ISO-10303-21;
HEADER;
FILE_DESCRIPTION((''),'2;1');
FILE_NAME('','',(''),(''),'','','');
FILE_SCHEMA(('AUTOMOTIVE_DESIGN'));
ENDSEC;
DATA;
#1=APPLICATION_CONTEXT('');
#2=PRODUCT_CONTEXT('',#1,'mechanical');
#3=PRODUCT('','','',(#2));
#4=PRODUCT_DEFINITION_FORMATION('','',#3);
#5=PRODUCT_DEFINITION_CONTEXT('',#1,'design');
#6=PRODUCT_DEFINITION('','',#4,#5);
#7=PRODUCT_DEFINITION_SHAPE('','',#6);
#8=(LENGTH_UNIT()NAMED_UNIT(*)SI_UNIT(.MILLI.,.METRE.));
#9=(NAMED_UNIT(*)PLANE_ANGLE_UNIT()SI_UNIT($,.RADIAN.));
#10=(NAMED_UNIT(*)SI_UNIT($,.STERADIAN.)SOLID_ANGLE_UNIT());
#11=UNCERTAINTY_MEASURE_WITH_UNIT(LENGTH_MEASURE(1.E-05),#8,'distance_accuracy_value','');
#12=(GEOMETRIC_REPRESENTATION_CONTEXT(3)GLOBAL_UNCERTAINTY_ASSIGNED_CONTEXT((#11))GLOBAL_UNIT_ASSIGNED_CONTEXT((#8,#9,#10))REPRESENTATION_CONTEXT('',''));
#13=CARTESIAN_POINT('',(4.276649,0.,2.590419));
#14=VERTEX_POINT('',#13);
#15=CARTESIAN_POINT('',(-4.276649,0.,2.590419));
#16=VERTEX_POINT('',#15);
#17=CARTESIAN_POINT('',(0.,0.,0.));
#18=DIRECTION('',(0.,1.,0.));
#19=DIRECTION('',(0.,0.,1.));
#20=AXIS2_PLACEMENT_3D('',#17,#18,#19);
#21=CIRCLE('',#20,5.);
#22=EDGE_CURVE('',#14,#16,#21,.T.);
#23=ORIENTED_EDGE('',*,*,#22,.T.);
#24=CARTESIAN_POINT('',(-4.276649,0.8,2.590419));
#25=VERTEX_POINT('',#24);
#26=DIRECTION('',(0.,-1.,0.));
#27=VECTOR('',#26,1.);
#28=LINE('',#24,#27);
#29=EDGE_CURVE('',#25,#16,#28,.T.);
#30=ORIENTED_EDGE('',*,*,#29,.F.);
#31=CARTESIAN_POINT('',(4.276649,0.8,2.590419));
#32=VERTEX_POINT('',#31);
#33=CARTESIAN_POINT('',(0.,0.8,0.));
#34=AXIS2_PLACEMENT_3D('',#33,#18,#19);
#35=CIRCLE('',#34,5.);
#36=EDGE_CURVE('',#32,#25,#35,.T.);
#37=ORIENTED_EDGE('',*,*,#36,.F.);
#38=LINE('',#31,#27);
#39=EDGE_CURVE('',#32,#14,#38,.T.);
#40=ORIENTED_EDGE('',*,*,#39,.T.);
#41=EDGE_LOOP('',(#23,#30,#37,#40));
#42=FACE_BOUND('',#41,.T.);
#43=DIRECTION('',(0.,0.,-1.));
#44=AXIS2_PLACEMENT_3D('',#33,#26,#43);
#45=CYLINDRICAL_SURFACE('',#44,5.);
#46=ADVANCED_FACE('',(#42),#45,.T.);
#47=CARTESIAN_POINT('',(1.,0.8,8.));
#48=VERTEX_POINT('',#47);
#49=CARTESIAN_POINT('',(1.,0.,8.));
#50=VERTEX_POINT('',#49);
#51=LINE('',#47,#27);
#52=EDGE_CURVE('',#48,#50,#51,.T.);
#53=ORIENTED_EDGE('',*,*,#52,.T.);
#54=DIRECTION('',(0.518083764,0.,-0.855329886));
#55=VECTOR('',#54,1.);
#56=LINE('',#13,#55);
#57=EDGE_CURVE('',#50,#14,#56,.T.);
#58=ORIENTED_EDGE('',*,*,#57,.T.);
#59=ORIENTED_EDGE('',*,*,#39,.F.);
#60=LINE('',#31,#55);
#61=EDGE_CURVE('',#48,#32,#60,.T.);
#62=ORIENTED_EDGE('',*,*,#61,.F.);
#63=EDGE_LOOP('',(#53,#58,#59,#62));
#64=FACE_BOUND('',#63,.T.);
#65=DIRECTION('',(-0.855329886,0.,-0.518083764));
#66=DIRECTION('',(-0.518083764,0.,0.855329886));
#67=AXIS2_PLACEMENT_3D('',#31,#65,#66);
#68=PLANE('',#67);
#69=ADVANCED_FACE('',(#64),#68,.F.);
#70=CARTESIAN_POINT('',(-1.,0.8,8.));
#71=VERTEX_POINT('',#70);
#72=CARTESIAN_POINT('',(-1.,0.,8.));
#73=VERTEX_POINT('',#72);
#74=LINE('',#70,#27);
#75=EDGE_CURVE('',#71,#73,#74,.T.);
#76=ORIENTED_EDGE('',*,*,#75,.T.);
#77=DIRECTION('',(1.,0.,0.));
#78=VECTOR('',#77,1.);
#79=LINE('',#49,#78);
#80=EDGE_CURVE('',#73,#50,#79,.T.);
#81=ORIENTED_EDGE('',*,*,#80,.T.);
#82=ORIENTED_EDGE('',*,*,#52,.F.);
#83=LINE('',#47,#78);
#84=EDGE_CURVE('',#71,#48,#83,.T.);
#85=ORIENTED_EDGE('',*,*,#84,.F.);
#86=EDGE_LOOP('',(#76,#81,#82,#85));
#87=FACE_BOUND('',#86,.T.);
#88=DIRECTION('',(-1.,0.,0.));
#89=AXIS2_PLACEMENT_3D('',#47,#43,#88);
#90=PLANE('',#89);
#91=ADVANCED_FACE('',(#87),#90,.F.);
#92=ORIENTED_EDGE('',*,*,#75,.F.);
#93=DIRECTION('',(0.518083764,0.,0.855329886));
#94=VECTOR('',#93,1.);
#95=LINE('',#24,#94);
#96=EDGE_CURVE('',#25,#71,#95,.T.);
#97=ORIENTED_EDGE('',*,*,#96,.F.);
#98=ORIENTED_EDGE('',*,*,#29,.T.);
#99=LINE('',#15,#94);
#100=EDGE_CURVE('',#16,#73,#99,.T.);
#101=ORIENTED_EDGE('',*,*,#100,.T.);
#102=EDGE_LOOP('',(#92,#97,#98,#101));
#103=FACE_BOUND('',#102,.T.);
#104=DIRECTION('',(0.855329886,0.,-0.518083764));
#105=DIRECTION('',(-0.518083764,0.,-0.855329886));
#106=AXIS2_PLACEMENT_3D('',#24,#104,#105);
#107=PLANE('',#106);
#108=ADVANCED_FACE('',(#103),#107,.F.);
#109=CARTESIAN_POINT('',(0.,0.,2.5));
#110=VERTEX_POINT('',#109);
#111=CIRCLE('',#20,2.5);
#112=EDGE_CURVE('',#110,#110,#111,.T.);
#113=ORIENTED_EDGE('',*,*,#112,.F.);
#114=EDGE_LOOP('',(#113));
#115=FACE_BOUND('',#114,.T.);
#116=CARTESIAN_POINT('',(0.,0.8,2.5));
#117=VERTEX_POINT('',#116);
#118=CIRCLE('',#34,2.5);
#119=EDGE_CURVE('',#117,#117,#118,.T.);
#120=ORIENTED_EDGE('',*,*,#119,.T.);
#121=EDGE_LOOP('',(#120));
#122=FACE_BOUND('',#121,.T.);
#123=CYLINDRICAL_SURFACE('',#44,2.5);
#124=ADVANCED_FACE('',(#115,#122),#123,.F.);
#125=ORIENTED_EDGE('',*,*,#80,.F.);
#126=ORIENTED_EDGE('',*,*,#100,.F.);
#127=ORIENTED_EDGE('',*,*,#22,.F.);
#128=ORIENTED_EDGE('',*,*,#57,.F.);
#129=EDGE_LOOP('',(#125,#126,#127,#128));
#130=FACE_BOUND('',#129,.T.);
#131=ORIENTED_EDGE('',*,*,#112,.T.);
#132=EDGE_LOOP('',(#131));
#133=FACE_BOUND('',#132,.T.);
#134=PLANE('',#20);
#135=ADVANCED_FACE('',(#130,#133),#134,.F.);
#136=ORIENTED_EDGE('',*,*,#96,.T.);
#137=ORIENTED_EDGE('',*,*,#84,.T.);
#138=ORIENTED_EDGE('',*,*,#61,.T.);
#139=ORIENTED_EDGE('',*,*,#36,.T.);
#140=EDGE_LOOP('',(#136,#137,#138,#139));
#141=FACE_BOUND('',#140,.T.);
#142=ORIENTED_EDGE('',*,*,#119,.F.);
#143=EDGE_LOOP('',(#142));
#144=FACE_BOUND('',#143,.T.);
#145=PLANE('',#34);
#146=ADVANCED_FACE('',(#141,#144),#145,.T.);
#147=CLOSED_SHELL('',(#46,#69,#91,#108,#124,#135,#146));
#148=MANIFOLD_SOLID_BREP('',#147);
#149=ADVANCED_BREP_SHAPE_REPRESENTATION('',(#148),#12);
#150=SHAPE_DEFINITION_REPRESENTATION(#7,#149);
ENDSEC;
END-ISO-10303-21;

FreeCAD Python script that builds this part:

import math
import FreeCAD as App
import Part
import Sketcher
from FreeCAD import Vector

doc = App.newDocument("Part")
params = doc.addObject("Spreadsheet::Sheet", "Params")
for row, (alias, value) in enumerate([
    ("sketch1_diameter", "5 mm"),
    ("sketch1_radius", "5 mm"),
    ("sketch1_width", "2 mm"),
    ("pad1_length", "0.8 mm"),
], start=1):
    params.set(f"A{row}", alias)
    params.set(f"B{row}", "=" + value)
    params.setAlias(f"B{row}", alias)

body = doc.addObject("PartDesign::Body", "Body")

# Sketch on XZ plane
sketch1 = doc.addObject("Sketcher::SketchObject", "Sketch")
body.addObject(sketch1)
sketch1.AttachmentSupport = (doc.XZ_Plane, [""])
sketch1.MapMode = "FlatFace"
sketch1.addGeometry([
    Part.LineSegment(Vector(-4.3, 2.6, 0), Vector(-1, 8, 0)),  # 0
    Part.LineSegment(Vector(-1, 8, 0), Vector(1, 8, 0)),  # 1
    Part.LineSegment(Vector(1, 8, 0), Vector(4.3, 2.6, 0)),  # 2
    Part.ArcOfCircle(Part.Circle(Vector(0, 0, 0), Vector(0, 0, 1), 5), math.radians(149), math.radians(391)),  # 3
    Part.Circle(Vector(0, 0, 0), Vector(0, 0, 1), 2.5),  # 4
], False)
sketch1.addConstraint([
    Sketcher.Constraint("Coincident", 0, 2, 1, 1),
    Sketcher.Constraint("Coincident", 1, 2, 2, 1),
    Sketcher.Constraint("Tangent", 2, 2, 3, 2),
    Sketcher.Constraint("Tangent", 3, 1, 0, 1),
    Sketcher.Constraint("Horizontal", 1),
    Sketcher.Constraint("Coincident", 3, 3, -1, 1),
    Sketcher.Constraint("Coincident", 4, 3, -1, 1),
    Sketcher.Constraint("Horizontal", 2, 2, 3, 1),
    Sketcher.Constraint("Diameter", 4, 5.0),
    Sketcher.Constraint("Radius", 3, 5.0),
    Sketcher.Constraint("DistanceX", 1, 1, 1, 2, 2.0),
    Sketcher.Constraint("DistanceY", -1, 1, 0, 2, 8.0),
])
sketch1.setExpression("Constraints[8]", "Params.sketch1_diameter")
sketch1.setExpression("Constraints[9]", "Params.sketch1_radius")
sketch1.setExpression("Constraints[10]", "Params.sketch1_width")
pad1 = doc.addObject("PartDesign::Pad", "Pad")
body.addObject(pad1)
pad1.Profile = sketch1
pad1.setExpression("Length", "Params.pad1_length")
pad1.Reversed = True

doc.recompute()
